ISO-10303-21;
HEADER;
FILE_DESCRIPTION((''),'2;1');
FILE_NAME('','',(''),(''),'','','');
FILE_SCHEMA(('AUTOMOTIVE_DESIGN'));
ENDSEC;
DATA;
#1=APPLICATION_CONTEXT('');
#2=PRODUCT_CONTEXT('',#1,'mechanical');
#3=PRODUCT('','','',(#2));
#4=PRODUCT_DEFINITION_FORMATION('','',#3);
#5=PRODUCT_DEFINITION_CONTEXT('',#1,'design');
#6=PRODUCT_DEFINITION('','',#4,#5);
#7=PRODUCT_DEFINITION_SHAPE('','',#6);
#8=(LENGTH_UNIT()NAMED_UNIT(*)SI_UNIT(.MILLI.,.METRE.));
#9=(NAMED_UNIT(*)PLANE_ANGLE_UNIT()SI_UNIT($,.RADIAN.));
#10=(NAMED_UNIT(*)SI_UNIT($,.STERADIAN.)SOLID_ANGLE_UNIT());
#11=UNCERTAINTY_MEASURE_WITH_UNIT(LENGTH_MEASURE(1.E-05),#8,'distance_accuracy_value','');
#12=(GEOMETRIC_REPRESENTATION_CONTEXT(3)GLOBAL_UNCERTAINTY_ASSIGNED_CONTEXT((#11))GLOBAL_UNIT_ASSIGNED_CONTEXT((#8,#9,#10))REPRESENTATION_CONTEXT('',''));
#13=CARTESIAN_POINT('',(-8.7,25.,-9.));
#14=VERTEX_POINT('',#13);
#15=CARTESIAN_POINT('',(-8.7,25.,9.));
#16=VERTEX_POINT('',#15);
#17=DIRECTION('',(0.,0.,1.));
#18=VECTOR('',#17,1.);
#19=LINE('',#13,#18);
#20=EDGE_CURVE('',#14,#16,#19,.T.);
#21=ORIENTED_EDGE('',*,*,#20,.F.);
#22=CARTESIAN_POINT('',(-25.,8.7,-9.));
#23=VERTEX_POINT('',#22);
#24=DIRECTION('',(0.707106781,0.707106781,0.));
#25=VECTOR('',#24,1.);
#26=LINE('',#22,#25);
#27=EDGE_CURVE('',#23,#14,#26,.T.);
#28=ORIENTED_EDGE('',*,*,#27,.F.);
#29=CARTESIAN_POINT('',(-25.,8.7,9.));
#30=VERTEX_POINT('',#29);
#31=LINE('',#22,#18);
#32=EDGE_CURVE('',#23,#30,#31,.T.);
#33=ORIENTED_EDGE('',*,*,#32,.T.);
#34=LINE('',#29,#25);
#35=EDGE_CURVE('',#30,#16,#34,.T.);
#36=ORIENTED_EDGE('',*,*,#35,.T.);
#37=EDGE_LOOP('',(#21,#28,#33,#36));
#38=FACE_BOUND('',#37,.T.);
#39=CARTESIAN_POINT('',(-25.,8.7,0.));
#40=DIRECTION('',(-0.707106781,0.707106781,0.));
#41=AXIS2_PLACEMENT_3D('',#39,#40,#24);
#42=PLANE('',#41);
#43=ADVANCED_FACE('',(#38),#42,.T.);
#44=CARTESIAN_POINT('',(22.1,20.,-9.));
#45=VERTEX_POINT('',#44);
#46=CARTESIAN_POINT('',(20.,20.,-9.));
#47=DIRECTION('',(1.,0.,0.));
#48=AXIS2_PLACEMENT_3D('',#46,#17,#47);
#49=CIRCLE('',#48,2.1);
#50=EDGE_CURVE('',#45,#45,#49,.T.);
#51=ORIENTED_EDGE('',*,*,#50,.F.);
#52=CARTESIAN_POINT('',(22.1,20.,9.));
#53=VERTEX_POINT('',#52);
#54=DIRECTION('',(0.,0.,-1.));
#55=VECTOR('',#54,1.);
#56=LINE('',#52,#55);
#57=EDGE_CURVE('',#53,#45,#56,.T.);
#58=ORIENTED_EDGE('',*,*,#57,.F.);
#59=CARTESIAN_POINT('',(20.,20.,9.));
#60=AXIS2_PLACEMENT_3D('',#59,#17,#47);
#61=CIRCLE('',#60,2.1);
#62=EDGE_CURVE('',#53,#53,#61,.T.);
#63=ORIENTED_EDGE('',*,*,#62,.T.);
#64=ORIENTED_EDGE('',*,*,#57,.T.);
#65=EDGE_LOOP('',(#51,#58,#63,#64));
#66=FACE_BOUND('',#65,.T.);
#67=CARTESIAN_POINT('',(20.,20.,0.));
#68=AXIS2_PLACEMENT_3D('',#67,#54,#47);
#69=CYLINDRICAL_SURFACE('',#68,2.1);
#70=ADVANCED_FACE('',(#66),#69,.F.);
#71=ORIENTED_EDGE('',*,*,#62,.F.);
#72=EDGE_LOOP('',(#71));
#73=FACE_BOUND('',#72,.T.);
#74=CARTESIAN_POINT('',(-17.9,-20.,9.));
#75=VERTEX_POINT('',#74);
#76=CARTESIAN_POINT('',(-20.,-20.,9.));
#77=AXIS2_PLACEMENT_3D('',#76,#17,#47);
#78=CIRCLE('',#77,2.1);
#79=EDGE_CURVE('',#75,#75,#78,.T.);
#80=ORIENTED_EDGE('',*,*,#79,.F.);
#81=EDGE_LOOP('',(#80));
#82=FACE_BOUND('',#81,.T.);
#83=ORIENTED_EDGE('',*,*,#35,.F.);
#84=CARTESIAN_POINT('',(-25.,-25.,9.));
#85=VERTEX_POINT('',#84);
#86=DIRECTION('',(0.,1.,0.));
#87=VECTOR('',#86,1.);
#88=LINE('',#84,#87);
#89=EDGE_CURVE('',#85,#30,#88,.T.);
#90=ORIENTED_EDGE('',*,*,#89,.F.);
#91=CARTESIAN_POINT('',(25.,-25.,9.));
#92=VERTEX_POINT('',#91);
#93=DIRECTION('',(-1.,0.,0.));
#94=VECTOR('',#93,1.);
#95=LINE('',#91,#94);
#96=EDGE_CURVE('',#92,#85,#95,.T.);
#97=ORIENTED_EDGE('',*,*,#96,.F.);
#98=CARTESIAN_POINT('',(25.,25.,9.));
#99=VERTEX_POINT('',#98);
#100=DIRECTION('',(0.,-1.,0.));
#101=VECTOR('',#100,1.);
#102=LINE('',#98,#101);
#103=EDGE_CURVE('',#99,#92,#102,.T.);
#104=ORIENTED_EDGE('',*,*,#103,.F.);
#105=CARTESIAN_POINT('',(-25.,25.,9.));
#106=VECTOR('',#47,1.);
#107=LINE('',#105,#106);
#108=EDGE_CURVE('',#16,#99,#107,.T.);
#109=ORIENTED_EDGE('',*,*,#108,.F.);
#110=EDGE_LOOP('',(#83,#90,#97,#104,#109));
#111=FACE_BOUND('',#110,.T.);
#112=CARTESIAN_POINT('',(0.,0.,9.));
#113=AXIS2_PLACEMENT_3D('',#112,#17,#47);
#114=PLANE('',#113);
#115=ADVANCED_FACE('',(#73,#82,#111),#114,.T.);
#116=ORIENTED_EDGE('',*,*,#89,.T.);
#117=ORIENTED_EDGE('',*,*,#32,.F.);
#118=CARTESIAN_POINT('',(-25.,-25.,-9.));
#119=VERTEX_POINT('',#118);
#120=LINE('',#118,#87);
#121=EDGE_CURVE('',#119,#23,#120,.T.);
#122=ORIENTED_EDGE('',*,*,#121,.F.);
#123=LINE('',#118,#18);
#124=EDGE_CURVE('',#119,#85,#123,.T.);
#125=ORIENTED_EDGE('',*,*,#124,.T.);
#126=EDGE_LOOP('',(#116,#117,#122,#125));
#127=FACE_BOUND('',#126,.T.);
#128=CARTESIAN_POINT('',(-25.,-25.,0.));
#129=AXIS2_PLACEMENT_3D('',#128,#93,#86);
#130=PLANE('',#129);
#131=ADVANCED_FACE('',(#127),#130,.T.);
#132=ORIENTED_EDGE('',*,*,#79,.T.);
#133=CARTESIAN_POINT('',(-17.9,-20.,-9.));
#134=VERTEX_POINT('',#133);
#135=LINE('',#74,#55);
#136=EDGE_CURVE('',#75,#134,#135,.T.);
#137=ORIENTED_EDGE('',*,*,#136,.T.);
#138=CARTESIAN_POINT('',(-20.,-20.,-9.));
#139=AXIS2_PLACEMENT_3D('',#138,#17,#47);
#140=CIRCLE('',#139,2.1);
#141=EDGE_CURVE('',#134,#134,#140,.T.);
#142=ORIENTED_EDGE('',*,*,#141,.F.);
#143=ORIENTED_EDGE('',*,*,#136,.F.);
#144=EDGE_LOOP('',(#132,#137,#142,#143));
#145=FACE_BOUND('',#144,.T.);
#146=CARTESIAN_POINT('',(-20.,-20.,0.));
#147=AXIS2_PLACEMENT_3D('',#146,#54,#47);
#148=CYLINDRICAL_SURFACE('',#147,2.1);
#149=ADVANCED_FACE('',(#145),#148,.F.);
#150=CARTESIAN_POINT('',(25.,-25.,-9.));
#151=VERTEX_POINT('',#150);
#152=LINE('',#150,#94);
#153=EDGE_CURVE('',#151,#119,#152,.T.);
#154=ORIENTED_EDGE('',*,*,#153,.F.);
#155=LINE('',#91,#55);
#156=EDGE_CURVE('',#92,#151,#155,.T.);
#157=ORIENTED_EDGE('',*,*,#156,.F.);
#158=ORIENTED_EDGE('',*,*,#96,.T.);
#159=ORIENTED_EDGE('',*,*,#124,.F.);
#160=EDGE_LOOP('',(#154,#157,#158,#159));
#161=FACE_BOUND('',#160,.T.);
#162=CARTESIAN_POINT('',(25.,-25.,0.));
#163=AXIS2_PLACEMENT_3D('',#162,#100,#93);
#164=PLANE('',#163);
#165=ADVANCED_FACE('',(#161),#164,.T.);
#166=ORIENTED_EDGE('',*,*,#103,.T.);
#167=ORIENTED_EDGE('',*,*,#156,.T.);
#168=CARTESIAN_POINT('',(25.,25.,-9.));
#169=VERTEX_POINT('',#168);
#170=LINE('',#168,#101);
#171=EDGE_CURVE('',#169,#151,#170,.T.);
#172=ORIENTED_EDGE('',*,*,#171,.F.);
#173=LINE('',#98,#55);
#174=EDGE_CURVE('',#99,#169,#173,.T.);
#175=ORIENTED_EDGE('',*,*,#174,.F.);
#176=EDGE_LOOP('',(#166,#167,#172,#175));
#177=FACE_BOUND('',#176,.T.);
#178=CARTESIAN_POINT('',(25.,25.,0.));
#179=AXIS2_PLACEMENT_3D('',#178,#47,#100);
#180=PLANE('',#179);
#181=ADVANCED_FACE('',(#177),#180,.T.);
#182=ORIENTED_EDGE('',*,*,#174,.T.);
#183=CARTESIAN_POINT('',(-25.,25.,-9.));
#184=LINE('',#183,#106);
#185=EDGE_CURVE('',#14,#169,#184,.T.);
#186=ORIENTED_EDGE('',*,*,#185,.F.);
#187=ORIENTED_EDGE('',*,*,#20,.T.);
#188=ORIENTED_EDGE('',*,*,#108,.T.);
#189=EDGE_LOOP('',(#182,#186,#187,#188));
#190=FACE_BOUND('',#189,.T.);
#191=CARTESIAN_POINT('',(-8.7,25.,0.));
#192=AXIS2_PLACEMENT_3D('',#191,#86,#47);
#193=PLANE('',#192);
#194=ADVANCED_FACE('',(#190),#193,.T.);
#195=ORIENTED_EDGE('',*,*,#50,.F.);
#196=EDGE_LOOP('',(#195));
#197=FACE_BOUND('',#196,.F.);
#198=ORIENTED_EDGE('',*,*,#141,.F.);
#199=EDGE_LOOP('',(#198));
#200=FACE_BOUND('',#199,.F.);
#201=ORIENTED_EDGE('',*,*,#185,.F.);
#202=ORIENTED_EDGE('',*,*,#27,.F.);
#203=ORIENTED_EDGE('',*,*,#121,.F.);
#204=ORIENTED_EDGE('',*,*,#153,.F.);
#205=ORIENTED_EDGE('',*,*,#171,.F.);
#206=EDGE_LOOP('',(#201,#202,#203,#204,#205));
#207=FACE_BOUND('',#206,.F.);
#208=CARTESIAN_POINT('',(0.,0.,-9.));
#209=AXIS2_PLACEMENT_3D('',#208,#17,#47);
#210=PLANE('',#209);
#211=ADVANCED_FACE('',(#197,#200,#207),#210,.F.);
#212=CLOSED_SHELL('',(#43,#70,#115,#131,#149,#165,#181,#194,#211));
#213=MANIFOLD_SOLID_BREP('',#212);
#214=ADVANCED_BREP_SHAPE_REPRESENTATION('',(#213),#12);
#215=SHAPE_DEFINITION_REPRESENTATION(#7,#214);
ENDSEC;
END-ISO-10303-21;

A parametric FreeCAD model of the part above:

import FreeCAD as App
import Part
import Sketcher
from FreeCAD import Vector

doc = App.newDocument("Part")
body = doc.addObject("PartDesign::Body", "Body")

# Sketch on XY plane
sketch1 = body.newObject("Sketcher::SketchObject", "Sketch")
sketch1.AttachmentSupport = (doc.getObject("XY_Plane"), [""])
sketch1.MapMode = "FlatFace"
sketch1.addGeometry(Part.LineSegment(Vector(25, 25, 0), Vector(-8.7, 25, 0)), False)
sketch1.addGeometry(Part.LineSegment(Vector(-8.7, 25, 0), Vector(-25, 8.7, 0)), False)
sketch1.addGeometry(Part.LineSegment(Vector(-25, 8.7, 0), Vector(-25, -25, 0)), False)
sketch1.addGeometry(Part.LineSegment(Vector(-25, -25, 0), Vector(25, -25, 0)), False)
sketch1.addGeometry(Part.LineSegment(Vector(25, -25, 0), Vector(25, 25, 0)), False)
sketch1.addGeometry(Part.Circle(Vector(-20, -20, 0), Vector(0, 0, 1), 2.1), False)
sketch1.addGeometry(Part.Circle(Vector(20, 20, 0), Vector(0, 0, 1), 2.1), False)
sketch1.addConstraint(Sketcher.Constraint("Coincident", 0, 2, 1, 1))
sketch1.addConstraint(Sketcher.Constraint("Coincident", 1, 2, 2, 1))
sketch1.addConstraint(Sketcher.Constraint("Coincident", 2, 2, 3, 1))
sketch1.addConstraint(Sketcher.Constraint("Coincident", 3, 2, 4, 1))
sketch1.addConstraint(Sketcher.Constraint("Coincident", 4, 2, 0, 1))
sketch1.addConstraint(Sketcher.Constraint("Horizontal", 0))
sketch1.addConstraint(Sketcher.Constraint("Vertical", 2))
sketch1.addConstraint(Sketcher.Constraint("Horizontal", 3))
sketch1.addConstraint(Sketcher.Constraint("Vertical", 4))
sketch1.addConstraint(Sketcher.Constraint("Equal", 5, 6))
sketch1.addConstraint(Sketcher.Constraint("Symmetric", 5, 3, 6, 3, -1, 1))
sketch1.addConstraint(Sketcher.Constraint("Symmetric", 2, 2, 4, 2, -1, 1))
sketch1.addConstraint(Sketcher.Constraint("Equal", 0, 2))
sketch1.addConstraint(Sketcher.Constraint("Equal", 3, 4))
sketch1.addConstraint(Sketcher.Constraint("Diameter", 5, 4.2))
sketch1.addConstraint(Sketcher.Constraint("DistanceX", 3, 1, 3, 2, 50.0))
sketch1.addConstraint(Sketcher.Constraint("DistanceX", 0, 2, 0, 1, 33.7))
sketch1.addConstraint(Sketcher.Constraint("DistanceY", 6, 3, 0, 2, 5.0))
sketch1.addConstraint(Sketcher.Constraint("DistanceX", 1, 2, 5, 3, 5.0))
pad1 = body.newObject("PartDesign::Pad", "Pad")
pad1.Profile = sketch1
pad1.Length = 18
pad1.Midplane = True

doc.recompute()
